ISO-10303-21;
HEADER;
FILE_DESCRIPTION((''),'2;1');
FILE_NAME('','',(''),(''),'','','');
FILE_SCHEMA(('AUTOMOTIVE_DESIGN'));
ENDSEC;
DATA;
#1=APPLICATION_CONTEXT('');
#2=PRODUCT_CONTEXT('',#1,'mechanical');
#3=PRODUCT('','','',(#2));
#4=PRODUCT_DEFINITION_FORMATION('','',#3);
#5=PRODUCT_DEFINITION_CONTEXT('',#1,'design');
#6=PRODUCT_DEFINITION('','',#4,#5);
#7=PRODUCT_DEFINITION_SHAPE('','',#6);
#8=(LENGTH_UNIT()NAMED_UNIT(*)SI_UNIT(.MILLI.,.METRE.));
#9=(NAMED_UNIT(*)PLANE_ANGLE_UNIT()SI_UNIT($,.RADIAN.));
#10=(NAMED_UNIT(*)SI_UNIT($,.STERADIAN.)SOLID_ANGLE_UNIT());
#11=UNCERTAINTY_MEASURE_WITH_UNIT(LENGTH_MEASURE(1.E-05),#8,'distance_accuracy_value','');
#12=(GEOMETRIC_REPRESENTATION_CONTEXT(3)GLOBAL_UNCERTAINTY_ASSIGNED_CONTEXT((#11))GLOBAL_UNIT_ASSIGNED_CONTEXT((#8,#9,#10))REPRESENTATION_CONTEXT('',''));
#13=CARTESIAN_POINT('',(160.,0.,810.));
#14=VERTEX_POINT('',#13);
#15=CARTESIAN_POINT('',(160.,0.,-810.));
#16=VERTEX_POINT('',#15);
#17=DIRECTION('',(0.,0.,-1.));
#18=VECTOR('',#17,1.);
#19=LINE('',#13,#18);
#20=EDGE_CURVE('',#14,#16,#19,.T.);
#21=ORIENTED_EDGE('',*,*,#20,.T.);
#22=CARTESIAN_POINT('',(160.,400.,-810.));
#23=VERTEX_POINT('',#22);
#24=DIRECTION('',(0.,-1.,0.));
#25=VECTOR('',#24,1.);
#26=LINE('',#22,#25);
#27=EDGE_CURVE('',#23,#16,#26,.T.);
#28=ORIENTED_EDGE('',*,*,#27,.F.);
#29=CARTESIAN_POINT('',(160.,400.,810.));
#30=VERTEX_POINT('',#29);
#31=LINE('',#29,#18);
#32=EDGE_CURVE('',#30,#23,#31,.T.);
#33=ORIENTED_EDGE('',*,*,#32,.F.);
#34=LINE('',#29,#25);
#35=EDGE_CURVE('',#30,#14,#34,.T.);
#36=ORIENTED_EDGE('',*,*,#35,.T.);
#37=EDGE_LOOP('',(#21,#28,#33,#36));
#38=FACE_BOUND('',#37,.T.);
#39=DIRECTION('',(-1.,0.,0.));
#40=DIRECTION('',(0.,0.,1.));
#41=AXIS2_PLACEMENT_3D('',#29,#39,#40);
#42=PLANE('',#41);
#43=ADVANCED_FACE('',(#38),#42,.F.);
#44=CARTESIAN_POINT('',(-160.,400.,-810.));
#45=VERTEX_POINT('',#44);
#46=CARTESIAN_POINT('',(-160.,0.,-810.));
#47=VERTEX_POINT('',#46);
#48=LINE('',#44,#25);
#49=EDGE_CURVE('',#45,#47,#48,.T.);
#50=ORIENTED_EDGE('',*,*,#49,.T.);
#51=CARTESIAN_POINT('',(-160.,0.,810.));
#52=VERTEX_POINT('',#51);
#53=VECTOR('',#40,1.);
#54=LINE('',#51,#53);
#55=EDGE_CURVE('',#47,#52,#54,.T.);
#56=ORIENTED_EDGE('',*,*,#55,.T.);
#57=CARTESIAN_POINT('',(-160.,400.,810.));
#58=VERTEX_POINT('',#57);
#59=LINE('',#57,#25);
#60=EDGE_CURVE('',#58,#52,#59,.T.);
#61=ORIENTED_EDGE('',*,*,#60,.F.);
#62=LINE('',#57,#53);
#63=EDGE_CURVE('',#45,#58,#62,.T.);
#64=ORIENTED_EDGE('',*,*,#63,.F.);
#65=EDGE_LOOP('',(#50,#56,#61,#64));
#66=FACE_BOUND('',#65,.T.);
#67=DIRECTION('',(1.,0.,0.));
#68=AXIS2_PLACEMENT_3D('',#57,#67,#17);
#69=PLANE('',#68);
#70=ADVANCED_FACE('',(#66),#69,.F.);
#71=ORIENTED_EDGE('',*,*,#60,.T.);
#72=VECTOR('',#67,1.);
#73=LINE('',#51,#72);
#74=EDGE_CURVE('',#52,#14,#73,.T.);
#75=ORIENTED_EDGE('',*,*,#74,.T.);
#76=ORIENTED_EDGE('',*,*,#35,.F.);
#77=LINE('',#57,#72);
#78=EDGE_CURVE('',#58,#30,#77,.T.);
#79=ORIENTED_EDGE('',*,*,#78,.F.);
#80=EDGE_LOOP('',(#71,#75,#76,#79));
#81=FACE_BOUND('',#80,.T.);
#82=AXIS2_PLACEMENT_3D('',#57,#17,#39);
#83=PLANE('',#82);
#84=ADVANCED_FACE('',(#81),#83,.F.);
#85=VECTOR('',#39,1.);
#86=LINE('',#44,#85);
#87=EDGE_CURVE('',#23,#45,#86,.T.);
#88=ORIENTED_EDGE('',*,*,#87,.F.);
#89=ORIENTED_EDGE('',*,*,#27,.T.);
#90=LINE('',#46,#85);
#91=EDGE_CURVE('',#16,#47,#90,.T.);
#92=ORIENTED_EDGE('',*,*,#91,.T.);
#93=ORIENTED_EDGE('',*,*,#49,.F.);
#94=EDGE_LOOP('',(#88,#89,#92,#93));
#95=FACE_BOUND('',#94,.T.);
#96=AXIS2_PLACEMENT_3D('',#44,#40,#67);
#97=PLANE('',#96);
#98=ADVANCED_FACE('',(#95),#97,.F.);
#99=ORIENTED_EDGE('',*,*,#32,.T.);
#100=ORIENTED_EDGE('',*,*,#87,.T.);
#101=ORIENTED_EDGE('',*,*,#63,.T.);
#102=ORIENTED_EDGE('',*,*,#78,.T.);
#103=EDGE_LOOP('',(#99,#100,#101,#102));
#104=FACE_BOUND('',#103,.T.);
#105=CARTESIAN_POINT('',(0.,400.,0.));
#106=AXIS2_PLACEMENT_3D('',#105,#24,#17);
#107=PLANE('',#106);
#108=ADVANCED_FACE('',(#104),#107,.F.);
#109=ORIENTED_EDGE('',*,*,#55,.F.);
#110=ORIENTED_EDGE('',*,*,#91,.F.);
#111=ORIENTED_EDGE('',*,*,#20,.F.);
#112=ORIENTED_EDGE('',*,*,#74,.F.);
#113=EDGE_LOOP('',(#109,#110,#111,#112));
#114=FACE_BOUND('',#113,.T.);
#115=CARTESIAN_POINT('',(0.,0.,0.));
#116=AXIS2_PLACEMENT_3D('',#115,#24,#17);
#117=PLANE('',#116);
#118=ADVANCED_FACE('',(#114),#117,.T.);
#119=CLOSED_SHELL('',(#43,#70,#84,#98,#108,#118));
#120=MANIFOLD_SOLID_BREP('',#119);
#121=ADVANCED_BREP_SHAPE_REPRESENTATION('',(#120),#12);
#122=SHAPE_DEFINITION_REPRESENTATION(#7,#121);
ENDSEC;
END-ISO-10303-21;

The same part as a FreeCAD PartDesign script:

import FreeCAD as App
import Part
import Sketcher

V = App.Vector
Q = App.Units.Quantity

doc = App.newDocument("Part")
body = doc.addObject("PartDesign::Body", "Body")

sketch1 = doc.addObject("Sketcher::SketchObject", "Sketch")
body.addObject(sketch1)
sketch1.AttachmentSupport = (doc.XZ_Plane, [""])
sketch1.MapMode = "FlatFace"
sketch1.addGeometry([
    Part.LineSegment(V(-160, -810, 0), V(-160, 810, 0)),
    Part.LineSegment(V(-160, 810, 0), V(160, 810, 0)),
    Part.LineSegment(V(160, 810, 0), V(160, -810, 0)),
    Part.LineSegment(V(160, -810, 0), V(-160, -810, 0)),
], False)
sketch1.addConstraint([
    Sketcher.Constraint("Coincident", 0, 2, 1, 1),
    Sketcher.Constraint("Coincident", 1, 2, 2, 1),
    Sketcher.Constraint("Coincident", 2, 2, 3, 1),
    Sketcher.Constraint("Coincident", 3, 2, 0, 1),
    Sketcher.Constraint("Vertical", 0),
    Sketcher.Constraint("Horizontal", 1),
    Sketcher.Constraint("Vertical", 2),
    Sketcher.Constraint("Horizontal", 3),
    Sketcher.Constraint("Symmetric", 0, 2, 2, 2, -1, 1),
    Sketcher.Constraint("DistanceX", 1, 1, 1, 2, Q("320 mm")),
    Sketcher.Constraint("DistanceY", 0, 1, 0, 2, Q("1620 mm")),
])
pad1 = doc.addObject("PartDesign::Pad", "Pad")
body.addObject(pad1)
pad1.Profile = sketch1
pad1.Length = 400
pad1.Reversed = True

doc.recompute()
